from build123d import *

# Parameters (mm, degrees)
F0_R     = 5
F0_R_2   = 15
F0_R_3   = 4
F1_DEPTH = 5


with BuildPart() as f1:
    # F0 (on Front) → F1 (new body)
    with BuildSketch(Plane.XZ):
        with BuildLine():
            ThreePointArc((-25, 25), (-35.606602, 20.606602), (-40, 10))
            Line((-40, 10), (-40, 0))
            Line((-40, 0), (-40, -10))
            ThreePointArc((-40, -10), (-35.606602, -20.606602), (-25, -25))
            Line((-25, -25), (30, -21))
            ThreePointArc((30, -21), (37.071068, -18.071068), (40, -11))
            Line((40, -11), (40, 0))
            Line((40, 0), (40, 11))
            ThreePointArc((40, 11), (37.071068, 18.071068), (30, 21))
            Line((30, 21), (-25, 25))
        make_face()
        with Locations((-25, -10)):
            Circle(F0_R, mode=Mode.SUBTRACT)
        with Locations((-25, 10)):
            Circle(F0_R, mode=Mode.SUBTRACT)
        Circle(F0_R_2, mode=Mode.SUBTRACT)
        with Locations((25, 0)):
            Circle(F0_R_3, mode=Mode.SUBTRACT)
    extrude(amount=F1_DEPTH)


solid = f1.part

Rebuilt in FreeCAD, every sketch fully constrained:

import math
import FreeCAD as App
import Part
import Sketcher

V = App.Vector

doc = App.newDocument("Part")
params = doc.addObject("Spreadsheet::Sheet", "Params")
for row, (alias, value) in enumerate([
    ("sketch1_diameter", "10 mm"),
    ("sketch1_diameter2", "30 mm"),
    ("sketch1_diameter3", "8 mm"),
    ("sketch1_radius", "9.999999 mm"),
    ("sketch1_height", "20 mm"),
    ("pad1_length", "5 mm"),
], start=1):
    params.set(f"A{row}", alias)
    params.set(f"B{row}", "=" + value)
    params.setAlias(f"B{row}", alias)

body = doc.addObject("PartDesign::Body", "Body")

# Sketch on XZ plane
sketch1 = body.newObject("Sketcher::SketchObject", "Sketch")
sketch1.AttachmentSupport = (doc.getObject("XZ_Plane"), [""])
sketch1.MapMode = "FlatFace"
sketch1.addGeometry([
    Part.ArcOfCircle(Part.Circle(V(-25, 10, 0), V(0, 0, 1), 15), math.radians(90), math.radians(180)),  # 0
    Part.LineSegment(V(-40, 10, 0), V(-40, -10, 0)),  # 1
    Part.ArcOfCircle(Part.Circle(V(-25, -10, 0), V(0, 0, 1), 15), math.radians(180), math.radians(270)),  # 2
    Part.LineSegment(V(-25, -25, 0), V(30, -21, 0)),  # 3
    Part.ArcOfCircle(Part.Circle(V(30, -11, 0), V(0, 0, 1), 10), math.radians(-90), math.radians(0)),  # 4
    Part.LineSegment(V(40, -11, 0), V(40, 11, 0)),  # 5
    Part.ArcOfCircle(Part.Circle(V(30, 11, 0), V(0, 0, 1), 10), math.radians(0), math.radians(90)),  # 6
    Part.LineSegment(V(30, 21, 0), V(-25, 25, 0)),  # 7
    Part.Circle(V(-25, -10, 0), V(0, 0, 1), 5),  # 8
    Part.Circle(V(-25, 10, 0), V(0, 0, 1), 5),  # 9
    Part.Circle(V(0, 0, 0), V(0, 0, 1), 15),  # 10
    Part.Circle(V(25, 0, 0), V(0, 0, 1), 4),  # 11
], False)
sketch1.addConstraint([
    Sketcher.Constraint("Tangent", 0, 2, 1, 1),
    Sketcher.Constraint("Tangent", 1, 2, 2, 1),
    Sketcher.Constraint("Coincident", 2, 2, 3, 1),
    Sketcher.Constraint("Coincident", 3, 2, 4, 1),
    Sketcher.Constraint("Tangent", 4, 2, 5, 1),
    Sketcher.Constraint("Tangent", 5, 2, 6, 1),
    Sketcher.Constraint("Coincident", 6, 2, 7, 1),
    Sketcher.Constraint("Coincident", 7, 2, 0, 1),
    Sketcher.Constraint("Vertical", 1),
    Sketcher.Constraint("Vertical", 5),
    Sketcher.Constraint("Coincident", 10, 3, -1, 1),
    Sketcher.Constraint("Coincident", 8, 3, 2, 3),
    Sketcher.Constraint("Coincident", 9, 3, 0, 3),
    Sketcher.Constraint("Equal", 0, 2),
    Sketcher.Constraint("Equal", 4, 6),
    Sketcher.Constraint("Equal", 8, 9),
    Sketcher.Constraint("Equal", 2, 10),
    Sketcher.Constraint("Symmetric", 3, 2, 6, 2, -1),
    Sketcher.Constraint("Symmetric", 2, 2, 7, 2, -1),
    Sketcher.Constraint("PointOnObject", 11, 3, -1),
    Sketcher.Constraint("Vertical", 9, 3, 2, 2),
    Sketcher.Constraint("Vertical", 6, 3, 3, 2),
    Sketcher.Constraint("Diameter", 8, 10.0),
    Sketcher.Constraint("Diameter", 10, 30.0),
    Sketcher.Constraint("Diameter", 11, 8.0),
    Sketcher.Constraint("Radius", 4, 9.999999),
    Sketcher.Constraint("DistanceY", 1, 2, 1, 1, 20.0),
    Sketcher.Constraint("DistanceY", 5, 1, 5, 2, 22.0),
    Sketcher.Constraint("DistanceX", 0, 3, -1, 1, 25.000001),
    Sketcher.Constraint("DistanceX", -1, 1, 4, 3, 30.000001),
    Sketcher.Constraint("DistanceX", -1, 1, 11, 3, 25.0),
])
sketch1.setExpression("Constraints[22]", "Params.sketch1_diameter")
sketch1.setExpression("Constraints[23]", "Params.sketch1_diameter2")
sketch1.setExpression("Constraints[24]", "Params.sketch1_diameter3")
sketch1.setExpression("Constraints[25]", "Params.sketch1_radius")
sketch1.setExpression("Constraints[26]", "Params.sketch1_height")
pad1 = body.newObject("PartDesign::Pad", "Pad")
pad1.Profile = sketch1
pad1.setExpression("Length", "Params.pad1_length")

doc.recompute()
